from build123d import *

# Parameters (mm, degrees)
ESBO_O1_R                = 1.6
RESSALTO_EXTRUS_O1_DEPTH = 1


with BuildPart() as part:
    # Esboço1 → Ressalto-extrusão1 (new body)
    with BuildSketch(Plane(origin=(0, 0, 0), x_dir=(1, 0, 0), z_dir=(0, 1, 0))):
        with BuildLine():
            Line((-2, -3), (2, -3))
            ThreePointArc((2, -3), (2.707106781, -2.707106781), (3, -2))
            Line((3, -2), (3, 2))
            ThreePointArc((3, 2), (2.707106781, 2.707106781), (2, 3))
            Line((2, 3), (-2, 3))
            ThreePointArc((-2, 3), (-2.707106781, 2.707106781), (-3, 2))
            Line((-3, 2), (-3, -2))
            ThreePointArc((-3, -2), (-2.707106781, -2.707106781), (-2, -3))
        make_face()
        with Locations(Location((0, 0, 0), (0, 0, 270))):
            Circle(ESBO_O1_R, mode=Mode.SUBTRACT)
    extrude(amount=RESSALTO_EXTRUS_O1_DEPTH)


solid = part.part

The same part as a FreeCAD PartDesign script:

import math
import FreeCAD as App
import Part
import Sketcher

V = App.Vector

doc = App.newDocument("Part")
body = doc.addObject("PartDesign::Body", "Body")

sketch1 = doc.addObject("Sketcher::SketchObject", "Sketch")
body.addObject(sketch1)
sketch1.AttachmentSupport = (doc.XZ_Plane, [""])
sketch1.MapMode = "FlatFace"
sketch1.addGeometry([
    Part.LineSegment(V(-2, 3, 0), V(2, 3, 0)),
    Part.ArcOfCircle(Part.Circle(V(2, 2, 0), V(0, 0, 1), 1), math.radians(0), math.radians(90)),
    Part.LineSegment(V(3, 2, 0), V(3, -2, 0)),
    Part.ArcOfCircle(Part.Circle(V(2, -2, 0), V(0, 0, 1), 1), math.radians(-90), math.radians(0)),
    Part.LineSegment(V(2, -3, 0), V(-2, -3, 0)),
    Part.ArcOfCircle(Part.Circle(V(-2, -2, 0), V(0, 0, 1), 1), math.radians(-180), math.radians(-90)),
    Part.LineSegment(V(-3, -2, 0), V(-3, 2, 0)),
    Part.ArcOfCircle(Part.Circle(V(-2, 2, 0), V(0, 0, 1), 1), math.radians(90), math.radians(180)),
    Part.Circle(V(0, 0, 0), V(0, 0, 1), 1.6),
], False)
sketch1.addConstraint([
    Sketcher.Constraint("Tangent", 0, 2, 1, 2),
    Sketcher.Constraint("Tangent", 1, 1, 2, 1),
    Sketcher.Constraint("Tangent", 2, 2, 3, 2),
    Sketcher.Constraint("Tangent", 3, 1, 4, 1),
    Sketcher.Constraint("Tangent", 4, 2, 5, 2),
    Sketcher.Constraint("Tangent", 5, 1, 6, 1),
    Sketcher.Constraint("Tangent", 6, 2, 7, 2),
    Sketcher.Constraint("Tangent", 7, 1, 0, 1),
    Sketcher.Constraint("Horizontal", 0),
    Sketcher.Constraint("Vertical", 2),
    Sketcher.Constraint("Horizontal", 4),
    Sketcher.Constraint("Vertical", 6),
    Sketcher.Constraint("Coincident", 8, 3, -1, 1),
    Sketcher.Constraint("Equal", 1, 3),
    Sketcher.Constraint("Equal", 3, 5),
    Sketcher.Constraint("Equal", 5, 7),
    Sketcher.Constraint("Symmetric", 1, 3, 5, 3, -1, 1),
    Sketcher.Constraint("Equal", 4, 2),
    Sketcher.Constraint("Radius", 1, 1.0),
    Sketcher.Constraint("Diameter", 8, 3.2),
    Sketcher.Constraint("DistanceX", 0, 1, 0, 2, 4.0),
])
pad1 = doc.addObject("PartDesign::Pad", "Pad")
body.addObject(pad1)
pad1.Profile = sketch1
pad1.Length = 1
pad1.Reversed = True

doc.recompute()
